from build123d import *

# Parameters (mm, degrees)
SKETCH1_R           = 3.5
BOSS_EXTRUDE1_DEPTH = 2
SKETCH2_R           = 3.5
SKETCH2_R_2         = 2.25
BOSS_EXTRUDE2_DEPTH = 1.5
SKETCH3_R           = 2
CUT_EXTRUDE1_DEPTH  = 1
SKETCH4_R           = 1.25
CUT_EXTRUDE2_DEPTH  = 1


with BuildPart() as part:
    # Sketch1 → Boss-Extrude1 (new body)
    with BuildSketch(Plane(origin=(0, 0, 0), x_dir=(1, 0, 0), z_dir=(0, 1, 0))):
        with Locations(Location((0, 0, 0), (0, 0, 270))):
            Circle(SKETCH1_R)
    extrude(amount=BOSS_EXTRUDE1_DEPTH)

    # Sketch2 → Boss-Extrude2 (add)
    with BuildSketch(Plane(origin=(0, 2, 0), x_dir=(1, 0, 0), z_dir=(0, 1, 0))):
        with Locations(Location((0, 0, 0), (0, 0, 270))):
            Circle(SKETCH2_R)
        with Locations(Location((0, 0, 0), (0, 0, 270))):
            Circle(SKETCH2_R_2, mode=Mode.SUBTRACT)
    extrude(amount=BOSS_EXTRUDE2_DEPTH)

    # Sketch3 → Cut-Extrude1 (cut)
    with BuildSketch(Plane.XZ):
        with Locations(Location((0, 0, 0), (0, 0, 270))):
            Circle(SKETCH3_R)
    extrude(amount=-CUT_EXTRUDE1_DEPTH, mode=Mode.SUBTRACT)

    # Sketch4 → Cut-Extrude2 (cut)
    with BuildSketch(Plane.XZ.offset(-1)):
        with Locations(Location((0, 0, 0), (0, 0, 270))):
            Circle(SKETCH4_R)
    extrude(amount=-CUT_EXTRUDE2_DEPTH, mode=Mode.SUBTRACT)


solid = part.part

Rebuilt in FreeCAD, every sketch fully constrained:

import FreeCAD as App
import Part
import Sketcher
Q = App.Units.Quantity

doc = App.newDocument("Part")
body = doc.addObject("PartDesign::Body", "Body")

sketch1 = body.newObject("Sketcher::SketchObject", "Sketch")
sketch1.AttachmentSupport = (doc.getObject("XZ_Plane"), [""])
sketch1.MapMode = "FlatFace"
sketch1.addGeometry(Part.Circle(App.Vector(0, 0, 0), App.Vector(0, 0, 1), 3.5), False)
sketch1.addConstraint([
    Sketcher.Constraint("Coincident", 0, 3, -1, 1),
    Sketcher.Constraint("Diameter", 0, Q("7 mm")),
])
pad1 = body.newObject("PartDesign::Pad", "Pad")
pad1.Profile = sketch1
pad1.Length = 2
pad1.Reversed = True

sketch2 = body.newObject("Sketcher::SketchObject", "Sketch001")
sketch2.AttachmentSupport = (doc.getObject("XZ_Plane"), [""])
sketch2.MapMode = "FlatFace"
sketch2.AttachmentOffset = App.Placement(App.Vector(0, 0, -2), App.Rotation())
sketch2.addGeometry([
    Part.Circle(App.Vector(0, 0, 0), App.Vector(0, 0, 1), 3.5),
    Part.Circle(App.Vector(0, 0, 0), App.Vector(0, 0, 1), 2.2),
], False)
sketch2.addConstraint([
    Sketcher.Constraint("Coincident", 0, 3, -1, 1),
    Sketcher.Constraint("Coincident", 1, 3, -1, 1),
    Sketcher.Constraint("Diameter", 0, Q("7 mm")),
    Sketcher.Constraint("Diameter", 1, Q("4.5 mm")),
])
pad2 = body.newObject("PartDesign::Pad", "Pad001")
pad2.Profile = sketch2
pad2.Length = 1.5
pad2.Reversed = True

sketch3 = body.newObject("Sketcher::SketchObject", "Sketch002")
sketch3.AttachmentSupport = (doc.getObject("XZ_Plane"), [""])
sketch3.MapMode = "FlatFace"
sketch3.addGeometry(Part.Circle(App.Vector(0, 0, 0), App.Vector(0, 0, 1), 2), False)
sketch3.addConstraint([
    Sketcher.Constraint("Coincident", 0, 3, -1, 1),
    Sketcher.Constraint("Diameter", 0, Q("4 mm")),
])
pocket1 = body.newObject("PartDesign::Pocket", "Pocket")
pocket1.Profile = sketch3
pocket1.Length = 1

sketch4 = body.newObject("Sketcher::SketchObject", "Sketch003")
sketch4.AttachmentSupport = (doc.getObject("XZ_Plane"), [""])
sketch4.MapMode = "FlatFace"
sketch4.AttachmentOffset = App.Placement(App.Vector(0, 0, -1), App.Rotation())
sketch4.addGeometry(Part.Circle(App.Vector(0, 0, 0), App.Vector(0, 0, 1), 1.2), False)
sketch4.addConstraint([
    Sketcher.Constraint("Coincident", 0, 3, -1, 1),
    Sketcher.Constraint("Diameter", 0, Q("2.5 mm")),
])
pocket2 = body.newObject("PartDesign::Pocket", "Pocket001")
pocket2.Profile = sketch4
pocket2.Length = 1

doc.recompute()
